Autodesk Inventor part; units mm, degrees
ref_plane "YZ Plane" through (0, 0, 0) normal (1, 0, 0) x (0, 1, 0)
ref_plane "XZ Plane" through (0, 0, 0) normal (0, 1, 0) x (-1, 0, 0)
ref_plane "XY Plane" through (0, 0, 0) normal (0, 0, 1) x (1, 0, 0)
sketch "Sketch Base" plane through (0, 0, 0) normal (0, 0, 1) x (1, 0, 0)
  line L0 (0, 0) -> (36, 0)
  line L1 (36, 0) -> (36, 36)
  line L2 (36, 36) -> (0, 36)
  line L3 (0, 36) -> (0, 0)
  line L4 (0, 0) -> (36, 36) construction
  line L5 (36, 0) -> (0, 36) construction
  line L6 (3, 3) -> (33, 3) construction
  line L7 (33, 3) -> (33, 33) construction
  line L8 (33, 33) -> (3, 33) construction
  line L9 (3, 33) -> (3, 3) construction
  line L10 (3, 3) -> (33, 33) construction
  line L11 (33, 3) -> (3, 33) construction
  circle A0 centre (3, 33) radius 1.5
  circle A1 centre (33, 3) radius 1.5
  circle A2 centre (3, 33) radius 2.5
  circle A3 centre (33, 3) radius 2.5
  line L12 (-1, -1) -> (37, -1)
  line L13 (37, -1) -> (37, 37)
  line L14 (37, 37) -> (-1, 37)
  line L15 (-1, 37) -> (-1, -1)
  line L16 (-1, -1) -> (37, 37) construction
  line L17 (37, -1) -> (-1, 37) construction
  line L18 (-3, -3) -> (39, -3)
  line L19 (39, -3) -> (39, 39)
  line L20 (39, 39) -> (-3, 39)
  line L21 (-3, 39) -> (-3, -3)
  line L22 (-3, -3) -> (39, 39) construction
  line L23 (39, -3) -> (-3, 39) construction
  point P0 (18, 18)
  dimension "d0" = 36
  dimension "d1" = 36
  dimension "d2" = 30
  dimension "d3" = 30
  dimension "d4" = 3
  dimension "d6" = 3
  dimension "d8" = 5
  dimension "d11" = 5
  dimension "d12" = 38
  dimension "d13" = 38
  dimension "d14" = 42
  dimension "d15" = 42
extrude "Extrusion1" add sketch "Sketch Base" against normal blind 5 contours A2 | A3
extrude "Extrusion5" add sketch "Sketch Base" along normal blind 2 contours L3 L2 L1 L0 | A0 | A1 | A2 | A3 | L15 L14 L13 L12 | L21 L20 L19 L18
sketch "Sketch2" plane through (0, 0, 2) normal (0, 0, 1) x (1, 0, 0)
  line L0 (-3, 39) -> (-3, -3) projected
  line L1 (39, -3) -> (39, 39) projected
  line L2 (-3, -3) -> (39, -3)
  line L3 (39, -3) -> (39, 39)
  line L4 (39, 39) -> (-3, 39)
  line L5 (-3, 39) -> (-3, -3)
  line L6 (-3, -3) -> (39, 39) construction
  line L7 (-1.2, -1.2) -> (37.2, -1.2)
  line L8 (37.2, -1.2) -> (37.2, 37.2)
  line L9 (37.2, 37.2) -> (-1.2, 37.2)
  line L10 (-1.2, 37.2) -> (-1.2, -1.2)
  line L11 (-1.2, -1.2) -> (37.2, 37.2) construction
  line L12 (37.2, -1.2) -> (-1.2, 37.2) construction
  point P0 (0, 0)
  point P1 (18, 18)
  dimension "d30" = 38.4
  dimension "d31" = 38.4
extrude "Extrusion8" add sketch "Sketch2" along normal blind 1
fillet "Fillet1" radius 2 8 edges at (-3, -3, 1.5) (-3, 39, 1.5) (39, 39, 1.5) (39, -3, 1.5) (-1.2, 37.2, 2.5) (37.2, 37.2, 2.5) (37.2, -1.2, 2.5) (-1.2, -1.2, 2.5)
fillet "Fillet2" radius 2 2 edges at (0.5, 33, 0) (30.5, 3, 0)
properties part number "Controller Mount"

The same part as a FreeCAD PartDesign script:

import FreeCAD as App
import Part
import Sketcher
from FreeCAD import Vector
Q = App.Units.Quantity


def edges_at(feature, points):
    """Names of the edges that pass closest to the given points."""
    edges = feature.Shape.Edges
    near = lambda p: min(range(len(edges)), key=lambda i: edges[i].distToShape(Part.Vertex(*p))[0])
    return sorted({f"Edge{near(p) + 1}" for p in points})


def add_polygon(sketch, points):
    """Adds a closed chain of lines whose ends are joined by coincident constraints."""
    first, n = sketch.GeometryCount, len(points)
    for a, b in zip(points, points[1:] + points[:1]):
        sketch.addGeometry(Part.LineSegment(App.Vector(*a, 0), App.Vector(*b, 0)), False)
    for i in range(n):
        sketch.addConstraint(Sketcher.Constraint("Coincident", first + i, 2, first + (i + 1) % n, 1))

doc = App.newDocument("Part")
body = doc.addObject("PartDesign::Body", "Body")
body.AllowCompound = True

# Sketch on XY plane
sketch1 = doc.addObject("Sketcher::SketchObject", "Sketch")
body.addObject(sketch1)
sketch1.AttachmentSupport = (doc.XY_Plane, [""])
sketch1.MapMode = "FlatFace"
sketch1.addGeometry([
    Part.Circle(Vector(3, 33, 0), Vector(0, 0, 1), 2.5),
    Part.Circle(Vector(3, 33, 0), Vector(0, 0, 1), 1.5),
    Part.Circle(Vector(33, 3, 0), Vector(0, 0, 1), 2.5),
    Part.Circle(Vector(33, 3, 0), Vector(0, 0, 1), 1.5),
], False)
sketch1.addConstraint([
    Sketcher.Constraint("Coincident", 1, 3, 0, 3),
    Sketcher.Constraint("Coincident", 3, 3, 2, 3),
    Sketcher.Constraint("Equal", 0, 2),
    Sketcher.Constraint("Equal", 1, 3),
    Sketcher.Constraint("Diameter", 0, Q("5 mm")),
    Sketcher.Constraint("Diameter", 1, Q("3 mm")),
    Sketcher.Constraint("DistanceX", -1, 1, 0, 3, Q("3 mm")),
    Sketcher.Constraint("DistanceY", -1, 1, 2, 3, Q("3 mm")),
    Sketcher.Constraint("DistanceX", 0, 3, 2, 3, Q("30 mm")),
    Sketcher.Constraint("DistanceY", 2, 3, 0, 3, Q("30 mm")),
])
pad1 = doc.addObject("PartDesign::Pad", "Pad")
body.addObject(pad1)
pad1.Profile = sketch1
pad1.Length = 5
pad1.Reversed = True

# Sketch on XY plane
sketch2 = doc.addObject("Sketcher::SketchObject", "Sketch001")
body.addObject(sketch2)
sketch2.AttachmentSupport = (doc.XY_Plane, [""])
sketch2.MapMode = "FlatFace"
add_polygon(sketch2, [(-3, 39), (-3, -3), (39, -3), (39, 39)])  # lines 0-3
sketch2.addConstraint([
    Sketcher.Constraint("Vertical", 0),
    Sketcher.Constraint("Horizontal", 1),
    Sketcher.Constraint("Vertical", 2),
    Sketcher.Constraint("Horizontal", 3),
    Sketcher.Constraint("Equal", 3, 0),
    Sketcher.Constraint("DistanceX", 1, 1, 1, 2, Q("42 mm")),
    Sketcher.Constraint("DistanceX", 0, 2, -1, 1, Q("3 mm")),
    Sketcher.Constraint("DistanceY", 0, 2, -1, 1, Q("3 mm")),
])
pad2 = doc.addObject("PartDesign::Pad", "Pad001")
body.addObject(pad2)
pad2.Profile = sketch2
pad2.Length = 2

# Sketch on XY plane
sketch3 = doc.addObject("Sketcher::SketchObject", "Sketch002")
body.addObject(sketch3)
sketch3.AttachmentSupport = (doc.XY_Plane, [""])
sketch3.MapMode = "FlatFace"
sketch3.AttachmentOffset = App.Placement(Vector(0, 0, 2), App.Rotation())
add_polygon(sketch3, [(39, 39), (-3, 39), (-3, -3), (39, -3)])  # lines 0-3
add_polygon(sketch3, [(37.2, -1.2), (-1.2, -1.2), (-1.2, 37.2), (37.2, 37.2)])  # lines 4-7
sketch3.addConstraint([
    Sketcher.Constraint("Horizontal", 0),
    Sketcher.Constraint("Vertical", 1),
    Sketcher.Constraint("Horizontal", 2),
    Sketcher.Constraint("Vertical", 3),
    Sketcher.Constraint("Horizontal", 4),
    Sketcher.Constraint("Vertical", 5),
    Sketcher.Constraint("Horizontal", 6),
    Sketcher.Constraint("Vertical", 7),
    Sketcher.Constraint("Equal", 2, 1),
    Sketcher.Constraint("Equal", 6, 5),
    Sketcher.Constraint("DistanceX", 4, 2, 4, 1, Q("38.4 mm")),
    Sketcher.Constraint("DistanceX", 0, 2, 0, 1, Q("42 mm")),
    Sketcher.Constraint("DistanceX", 0, 2, -1, 1, Q("3 mm")),
    Sketcher.Constraint("DistanceY", -1, 1, 0, 2, Q("39 mm")),
    Sketcher.Constraint("DistanceX", 4, 2, -1, 1, Q("1.2 mm")),
    Sketcher.Constraint("DistanceY", 4, 2, -1, 1, Q("1.2 mm")),
])
pad3 = doc.addObject("PartDesign::Pad", "Pad002")
body.addObject(pad3)
pad3.Profile = sketch3
pad3.Length = 1
doc.recompute()

fillet = doc.addObject("PartDesign::Fillet", "Fillet")
body.addObject(fillet)
fillet.Base = (pad3, edges_at(pad3, [
    (-3, -3, 1.5),
    (-3, 39, 1.5),
    (39, 39, 1.5),
    (39, -3, 1.5),
    (-1.2, 37.2, 2.5),
    (37.2, 37.2, 2.5),
    (37.2, -1.2, 2.5),
    (-1.2, -1.2, 2.5),
]))
fillet.Radius = 2
doc.recompute()

fillet2 = doc.addObject("PartDesign::Fillet", "Fillet001")
body.addObject(fillet2)
fillet2.Base = (fillet, edges_at(fillet, [(0.5, 33, 0), (30.5, 3, 0)]))
fillet2.Radius = 2

doc.recompute()
